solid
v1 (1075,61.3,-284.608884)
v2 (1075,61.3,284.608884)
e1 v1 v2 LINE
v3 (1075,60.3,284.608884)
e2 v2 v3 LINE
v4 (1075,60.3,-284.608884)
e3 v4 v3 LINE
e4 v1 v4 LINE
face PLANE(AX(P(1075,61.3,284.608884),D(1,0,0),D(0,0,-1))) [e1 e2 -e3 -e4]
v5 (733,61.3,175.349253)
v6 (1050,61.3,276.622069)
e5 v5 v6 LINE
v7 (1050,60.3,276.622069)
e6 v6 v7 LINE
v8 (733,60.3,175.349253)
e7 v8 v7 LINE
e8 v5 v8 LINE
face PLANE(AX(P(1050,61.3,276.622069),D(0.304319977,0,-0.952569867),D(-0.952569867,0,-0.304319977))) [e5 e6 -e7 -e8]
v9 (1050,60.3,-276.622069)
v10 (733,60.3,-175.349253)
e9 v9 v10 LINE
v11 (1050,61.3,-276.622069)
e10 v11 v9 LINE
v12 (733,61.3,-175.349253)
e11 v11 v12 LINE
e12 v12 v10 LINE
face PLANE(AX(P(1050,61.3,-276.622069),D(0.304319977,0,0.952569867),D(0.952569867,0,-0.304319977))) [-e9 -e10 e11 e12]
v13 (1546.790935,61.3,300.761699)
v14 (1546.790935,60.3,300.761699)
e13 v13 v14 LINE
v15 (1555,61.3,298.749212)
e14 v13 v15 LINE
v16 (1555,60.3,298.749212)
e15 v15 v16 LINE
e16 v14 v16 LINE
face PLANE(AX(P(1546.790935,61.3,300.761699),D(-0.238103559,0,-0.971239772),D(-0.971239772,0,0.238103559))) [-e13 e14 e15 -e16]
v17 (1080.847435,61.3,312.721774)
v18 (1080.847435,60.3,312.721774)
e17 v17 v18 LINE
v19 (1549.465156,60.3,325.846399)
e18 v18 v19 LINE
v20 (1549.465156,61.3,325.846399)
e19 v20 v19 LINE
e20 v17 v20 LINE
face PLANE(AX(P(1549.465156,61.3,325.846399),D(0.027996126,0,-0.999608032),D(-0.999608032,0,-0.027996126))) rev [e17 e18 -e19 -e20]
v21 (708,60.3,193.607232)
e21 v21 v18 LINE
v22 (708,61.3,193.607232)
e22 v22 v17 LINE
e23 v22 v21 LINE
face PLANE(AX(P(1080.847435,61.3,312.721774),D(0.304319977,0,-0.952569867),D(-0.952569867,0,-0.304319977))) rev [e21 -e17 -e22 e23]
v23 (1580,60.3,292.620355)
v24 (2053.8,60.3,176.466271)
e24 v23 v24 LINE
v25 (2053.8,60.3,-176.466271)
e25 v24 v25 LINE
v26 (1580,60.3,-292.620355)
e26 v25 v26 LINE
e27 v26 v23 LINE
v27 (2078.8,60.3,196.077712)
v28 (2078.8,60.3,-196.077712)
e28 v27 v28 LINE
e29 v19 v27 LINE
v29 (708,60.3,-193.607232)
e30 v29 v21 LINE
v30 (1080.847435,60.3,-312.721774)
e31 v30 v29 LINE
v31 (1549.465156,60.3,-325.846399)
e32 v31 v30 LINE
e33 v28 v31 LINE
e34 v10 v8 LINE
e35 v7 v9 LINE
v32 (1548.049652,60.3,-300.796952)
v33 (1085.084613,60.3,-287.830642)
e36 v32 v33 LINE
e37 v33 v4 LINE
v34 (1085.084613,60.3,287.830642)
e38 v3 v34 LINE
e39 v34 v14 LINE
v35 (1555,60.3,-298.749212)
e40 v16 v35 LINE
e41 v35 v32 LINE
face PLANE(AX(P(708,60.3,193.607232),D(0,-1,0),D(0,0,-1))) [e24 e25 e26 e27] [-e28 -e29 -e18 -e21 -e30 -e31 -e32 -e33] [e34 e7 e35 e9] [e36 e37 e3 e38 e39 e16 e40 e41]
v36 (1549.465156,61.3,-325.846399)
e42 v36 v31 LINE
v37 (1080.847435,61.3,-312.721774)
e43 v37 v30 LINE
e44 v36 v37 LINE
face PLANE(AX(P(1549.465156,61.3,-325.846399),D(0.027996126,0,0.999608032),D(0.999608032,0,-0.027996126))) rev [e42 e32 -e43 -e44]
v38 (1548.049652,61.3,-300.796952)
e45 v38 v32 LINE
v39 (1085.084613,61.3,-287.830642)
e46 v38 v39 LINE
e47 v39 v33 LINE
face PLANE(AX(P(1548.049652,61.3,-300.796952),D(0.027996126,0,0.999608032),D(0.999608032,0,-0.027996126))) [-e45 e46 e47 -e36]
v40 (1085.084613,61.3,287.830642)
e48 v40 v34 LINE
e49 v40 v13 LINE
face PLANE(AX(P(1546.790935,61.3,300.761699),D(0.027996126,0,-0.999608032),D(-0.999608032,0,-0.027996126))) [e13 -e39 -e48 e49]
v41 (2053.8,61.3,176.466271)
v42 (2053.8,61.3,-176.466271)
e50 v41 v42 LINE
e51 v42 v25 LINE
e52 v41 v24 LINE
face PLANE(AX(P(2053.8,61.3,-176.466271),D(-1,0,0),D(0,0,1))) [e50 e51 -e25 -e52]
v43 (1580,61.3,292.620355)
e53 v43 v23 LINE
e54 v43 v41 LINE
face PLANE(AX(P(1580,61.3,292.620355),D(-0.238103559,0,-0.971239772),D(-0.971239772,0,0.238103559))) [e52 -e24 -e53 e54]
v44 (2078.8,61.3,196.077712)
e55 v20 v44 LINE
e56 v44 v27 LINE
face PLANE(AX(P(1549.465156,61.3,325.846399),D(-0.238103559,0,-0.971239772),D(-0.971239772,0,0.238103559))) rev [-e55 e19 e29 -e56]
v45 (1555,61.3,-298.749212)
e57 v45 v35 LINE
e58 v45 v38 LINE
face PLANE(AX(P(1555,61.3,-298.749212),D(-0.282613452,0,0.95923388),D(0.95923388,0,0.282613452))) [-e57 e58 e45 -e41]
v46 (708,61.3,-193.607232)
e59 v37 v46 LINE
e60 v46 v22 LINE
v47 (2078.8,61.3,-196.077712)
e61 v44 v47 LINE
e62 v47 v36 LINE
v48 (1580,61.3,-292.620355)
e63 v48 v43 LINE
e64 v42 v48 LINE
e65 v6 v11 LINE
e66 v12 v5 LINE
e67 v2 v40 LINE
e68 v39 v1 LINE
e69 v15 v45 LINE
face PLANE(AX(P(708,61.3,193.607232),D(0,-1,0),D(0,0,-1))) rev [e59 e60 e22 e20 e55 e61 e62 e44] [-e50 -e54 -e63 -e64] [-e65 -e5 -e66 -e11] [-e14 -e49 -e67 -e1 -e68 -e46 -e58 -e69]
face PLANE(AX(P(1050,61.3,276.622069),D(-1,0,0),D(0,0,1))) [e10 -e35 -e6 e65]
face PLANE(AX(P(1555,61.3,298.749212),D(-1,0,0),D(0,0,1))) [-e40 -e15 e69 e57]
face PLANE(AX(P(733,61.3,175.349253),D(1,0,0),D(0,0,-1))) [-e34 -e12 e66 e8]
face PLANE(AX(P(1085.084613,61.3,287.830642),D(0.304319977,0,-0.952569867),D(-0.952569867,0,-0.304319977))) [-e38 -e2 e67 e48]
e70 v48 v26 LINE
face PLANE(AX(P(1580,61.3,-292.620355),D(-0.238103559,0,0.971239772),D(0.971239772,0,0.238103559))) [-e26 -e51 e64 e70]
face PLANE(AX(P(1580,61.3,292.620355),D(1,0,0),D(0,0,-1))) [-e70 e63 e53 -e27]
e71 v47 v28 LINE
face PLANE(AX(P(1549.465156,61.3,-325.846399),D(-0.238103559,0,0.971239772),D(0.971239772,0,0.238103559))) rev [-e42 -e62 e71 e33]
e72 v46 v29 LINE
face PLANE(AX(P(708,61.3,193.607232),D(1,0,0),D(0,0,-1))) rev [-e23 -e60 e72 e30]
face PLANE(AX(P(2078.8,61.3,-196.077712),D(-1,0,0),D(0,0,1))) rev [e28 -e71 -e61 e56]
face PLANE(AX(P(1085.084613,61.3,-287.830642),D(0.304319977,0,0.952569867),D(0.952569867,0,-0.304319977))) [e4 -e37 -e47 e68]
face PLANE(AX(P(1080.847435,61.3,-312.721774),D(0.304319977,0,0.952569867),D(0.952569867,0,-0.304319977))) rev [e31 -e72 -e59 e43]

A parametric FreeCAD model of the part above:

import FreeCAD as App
import Part
import Sketcher

V = App.Vector

doc = App.newDocument("Part")
params = doc.addObject("Spreadsheet::Sheet", "Params")
for row, (alias, value) in enumerate([
    ("pad1_length", "1 mm"),
], start=1):
    params.set(f"A{row}", alias)
    params.set(f"B{row}", "=" + value)
    params.setAlias(f"B{row}", alias)

body = doc.addObject("PartDesign::Body", "Body")

# Sketch on XZ plane
sketch1 = body.newObject("Sketcher::SketchObject", "Sketch")
sketch1.AttachmentSupport = (doc.getObject("XZ_Plane"), [""])
sketch1.MapMode = "FlatFace"
sketch1.AttachmentOffset = App.Placement(V(0, 0, -60.3), App.Rotation())
sketch1.addGeometry([
    Part.LineSegment(V(1549, 326, 0), V(2079, 196, 0)),  # 0
    Part.LineSegment(V(2079, 196, 0), V(2079, -196, 0)),  # 1
    Part.LineSegment(V(2079, -196, 0), V(1549, -326, 0)),  # 2
    Part.LineSegment(V(1549, -326, 0), V(1081, -313, 0)),  # 3
    Part.LineSegment(V(1081, -313, 0), V(708, -194, 0)),  # 4
    Part.LineSegment(V(708, -194, 0), V(708, 194, 0)),  # 5
    Part.LineSegment(V(708, 194, 0), V(1081, 313, 0)),  # 6
    Part.LineSegment(V(1081, 313, 0), V(1549, 326, 0)),  # 7
    Part.LineSegment(V(2054, 176, 0), V(1580, 293, 0)),  # 8
    Part.LineSegment(V(1580, 293, 0), V(1580, -293, 0)),  # 9
    Part.LineSegment(V(1580, -293, 0), V(2054, -176, 0)),  # 10
    Part.LineSegment(V(2054, -176, 0), V(2054, 176, 0)),  # 11
    Part.LineSegment(V(1555, 299, 0), V(1547, 301, 0)),  # 12
    Part.LineSegment(V(1547, 301, 0), V(1085, 288, 0)),  # 13
    Part.LineSegment(V(1085, 288, 0), V(1075, 285, 0)),  # 14
    Part.LineSegment(V(1075, 285, 0), V(1075, -285, 0)),  # 15
    Part.LineSegment(V(1075, -285, 0), V(1085, -288, 0)),  # 16
    Part.LineSegment(V(1085, -288, 0), V(1548, -301, 0)),  # 17
    Part.LineSegment(V(1548, -301, 0), V(1555, -299, 0)),  # 18
    Part.LineSegment(V(1555, -299, 0), V(1555, 299, 0)),  # 19
    Part.LineSegment(V(1050, 277, 0), V(733, 175, 0)),  # 20
    Part.LineSegment(V(733, 175, 0), V(733, -175, 0)),  # 21
    Part.LineSegment(V(733, -175, 0), V(1050, -277, 0)),  # 22
    Part.LineSegment(V(1050, -277, 0), V(1050, 277, 0)),  # 23
], False)
sketch1.addConstraint([
    Sketcher.Constraint("Coincident", 0, 2, 1, 1),
    Sketcher.Constraint("Coincident", 1, 2, 2, 1),
    Sketcher.Constraint("Coincident", 2, 2, 3, 1),
    Sketcher.Constraint("Coincident", 3, 2, 4, 1),
    Sketcher.Constraint("Coincident", 4, 2, 5, 1),
    Sketcher.Constraint("Coincident", 5, 2, 6, 1),
    Sketcher.Constraint("Coincident", 6, 2, 7, 1),
    Sketcher.Constraint("Coincident", 7, 2, 0, 1),
    Sketcher.Constraint("Coincident", 8, 2, 9, 1),
    Sketcher.Constraint("Coincident", 9, 2, 10, 1),
    Sketcher.Constraint("Coincident", 10, 2, 11, 1),
    Sketcher.Constraint("Coincident", 11, 2, 8, 1),
    Sketcher.Constraint("Coincident", 12, 2, 13, 1),
    Sketcher.Constraint("Coincident", 13, 2, 14, 1),
    Sketcher.Constraint("Coincident", 14, 2, 15, 1),
    Sketcher.Constraint("Coincident", 15, 2, 16, 1),
    Sketcher.Constraint("Coincident", 16, 2, 17, 1),
    Sketcher.Constraint("Coincident", 17, 2, 18, 1),
    Sketcher.Constraint("Coincident", 18, 2, 19, 1),
    Sketcher.Constraint("Coincident", 19, 2, 12, 1),
    Sketcher.Constraint("Coincident", 20, 2, 21, 1),
    Sketcher.Constraint("Coincident", 21, 2, 22, 1),
    Sketcher.Constraint("Coincident", 22, 2, 23, 1),
    Sketcher.Constraint("Coincident", 23, 2, 20, 1),
    Sketcher.Constraint("Vertical", 1),
    Sketcher.Constraint("Vertical", 5),
    Sketcher.Constraint("Vertical", 9),
    Sketcher.Constraint("Vertical", 11),
    Sketcher.Constraint("Vertical", 15),
    Sketcher.Constraint("Vertical", 19),
    Sketcher.Constraint("Vertical", 21),
    Sketcher.Constraint("Vertical", 23),
    Sketcher.Constraint("Symmetric", 3, 2, 6, 2, -1),
    Sketcher.Constraint("Symmetric", 2, 2, 7, 2, -1),
    Sketcher.Constraint("Symmetric", 13, 2, 16, 2, -1),
    Sketcher.Constraint("Parallel", 0, 8),
    Sketcher.Constraint("Parallel", 2, 10),
    Sketcher.Constraint("Parallel", 8, 12),
    Sketcher.Constraint("Parallel", 7, 13),
    Sketcher.Constraint("Parallel", 6, 14),
    Sketcher.Constraint("Parallel", 4, 16),
    Sketcher.Constraint("Parallel", 3, 17),
    Sketcher.Constraint("Parallel", 14, 20),
    Sketcher.Constraint("Parallel", 16, 22),
    Sketcher.Constraint("Equal", 0, 2),
    Sketcher.Constraint("Equal", 4, 6),
    Sketcher.Constraint("DistanceX", -1, 1, 4, 2, 708.0),
    Sketcher.Constraint("DistanceX", -1, 1, 8, 2, 1580.0),
    Sketcher.Constraint("DistanceX", -1, 1, 14, 2, 1075.0),
    Sketcher.Constraint("DistanceX", -1, 1, 18, 2, 1555.0),
    Sketcher.Constraint("DistanceX", -1, 1, 20, 2, 733.0),
    Sketcher.Constraint("DistanceX", -1, 1, 22, 2, 1050.0),
    Sketcher.Constraint("DistanceX", 10, 2, 1, 2, 25.0),
    Sketcher.Constraint("DistanceX", -1, 1, 0, 2, 2078.8),
    Sketcher.Constraint("DistanceY", 9, 2, 9, 1, 585.240711),
    Sketcher.Constraint("DistanceY", 15, 2, 15, 1, 569.217768),
    Sketcher.Constraint("DistanceY", 2, 2, -1, 1, 325.846399),
    Sketcher.Constraint("DistanceY", -1, 1, 12, 2, 300.761699),
    Sketcher.Constraint("DistanceX", 6, 2, 12, 2, 465.9435),
    Sketcher.Constraint("Distance", 0, 545.00944),
    Sketcher.Constraint("Distance", 12, 8.452151),
    Sketcher.Constraint("Distance", 17, 463.146578),
    Sketcher.Constraint("Distance", 20, 332.783989),
    Sketcher.Constraint("DistanceY", 1, 2, 1, 1, 392.155424),
    Sketcher.Constraint("DistanceY", 5, 1, 5, 2, 387.214464),
    Sketcher.Constraint("DistanceY", 19, 1, 19, 2, 597.498423),
    Sketcher.Constraint("DistanceY", 21, 2, 21, 1, 350.698506),
    Sketcher.Constraint("DistanceY", 10, 2, -1, 1, 176.466271),
    Sketcher.Constraint("DistanceY", 22, 2, -1, 1, 276.622069),
])
pad1 = body.newObject("PartDesign::Pad", "Pad")
pad1.Profile = sketch1
pad1.setExpression("Length", "Params.pad1_length")
pad1.Reversed = True

doc.recompute()
